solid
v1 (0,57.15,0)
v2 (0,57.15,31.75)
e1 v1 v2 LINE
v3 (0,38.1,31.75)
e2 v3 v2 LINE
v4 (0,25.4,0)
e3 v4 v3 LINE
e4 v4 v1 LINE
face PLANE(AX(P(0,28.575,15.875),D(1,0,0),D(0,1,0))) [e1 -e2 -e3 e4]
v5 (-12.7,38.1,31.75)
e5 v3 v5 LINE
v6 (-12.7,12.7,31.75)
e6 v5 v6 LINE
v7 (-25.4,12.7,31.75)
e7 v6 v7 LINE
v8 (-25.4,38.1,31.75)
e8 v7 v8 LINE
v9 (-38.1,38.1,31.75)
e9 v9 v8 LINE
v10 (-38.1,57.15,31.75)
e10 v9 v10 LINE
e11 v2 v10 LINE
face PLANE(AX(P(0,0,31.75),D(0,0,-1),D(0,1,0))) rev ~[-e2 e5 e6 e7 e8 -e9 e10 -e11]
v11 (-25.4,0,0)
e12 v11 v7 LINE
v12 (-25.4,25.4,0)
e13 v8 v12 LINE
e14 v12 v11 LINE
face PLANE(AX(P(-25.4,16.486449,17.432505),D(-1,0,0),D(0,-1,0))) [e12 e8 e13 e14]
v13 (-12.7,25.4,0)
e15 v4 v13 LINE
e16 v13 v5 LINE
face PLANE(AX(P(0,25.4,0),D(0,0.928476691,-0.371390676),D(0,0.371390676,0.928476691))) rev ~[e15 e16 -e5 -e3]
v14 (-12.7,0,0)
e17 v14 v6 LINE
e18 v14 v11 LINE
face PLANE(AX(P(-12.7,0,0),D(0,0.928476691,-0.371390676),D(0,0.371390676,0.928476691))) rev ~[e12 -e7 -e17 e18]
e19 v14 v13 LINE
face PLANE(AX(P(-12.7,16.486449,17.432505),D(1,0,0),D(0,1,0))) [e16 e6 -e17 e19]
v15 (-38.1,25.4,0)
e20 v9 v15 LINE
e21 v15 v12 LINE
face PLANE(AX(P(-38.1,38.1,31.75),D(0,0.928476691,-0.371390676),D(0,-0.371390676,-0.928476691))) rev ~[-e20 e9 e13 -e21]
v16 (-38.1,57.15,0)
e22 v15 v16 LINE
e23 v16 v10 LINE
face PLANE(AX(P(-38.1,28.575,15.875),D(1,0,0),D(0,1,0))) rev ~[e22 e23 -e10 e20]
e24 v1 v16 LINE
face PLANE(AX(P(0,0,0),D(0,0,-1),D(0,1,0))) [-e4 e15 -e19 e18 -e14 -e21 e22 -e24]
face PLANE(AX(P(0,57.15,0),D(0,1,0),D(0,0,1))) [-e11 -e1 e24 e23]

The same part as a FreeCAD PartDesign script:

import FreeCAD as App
import Part
import Sketcher
Q = App.Units.Quantity

doc = App.newDocument("Part")
body = doc.addObject("PartDesign::Body", "Body")

sketch1 = doc.addObject("Sketcher::SketchObject", "Sketch")
body.addObject(sketch1)
sketch1.AttachmentSupport = (doc.YZ_Plane, [""])
sketch1.MapMode = "FlatFace"
sketch1.addGeometry([
    Part.LineSegment(App.Vector(0, 32, 0), App.Vector(0, 0, 0)),
    Part.LineSegment(App.Vector(0, 0, 0), App.Vector(57, 0, 0)),
    Part.LineSegment(App.Vector(57, 0, 0), App.Vector(57, 32, 0)),
    Part.LineSegment(App.Vector(57, 32, 0), App.Vector(0, 32, 0)),
], False)
sketch1.addConstraint([
    Sketcher.Constraint("Coincident", 0, 2, 1, 1),
    Sketcher.Constraint("Coincident", 1, 2, 2, 1),
    Sketcher.Constraint("Coincident", 2, 2, 3, 1),
    Sketcher.Constraint("Coincident", 3, 2, 0, 1),
    Sketcher.Constraint("Vertical", 0),
    Sketcher.Constraint("Horizontal", 1),
    Sketcher.Constraint("Vertical", 2),
    Sketcher.Constraint("Horizontal", 3),
    Sketcher.Constraint("Coincident", 0, 2, -1, 1),
    Sketcher.Constraint("DistanceX", 1, 1, 1, 2, Q("2.25 in")),
    Sketcher.Constraint("DistanceY", 0, 2, 0, 1, Q("1.25 in")),
])
pad1 = doc.addObject("PartDesign::Pad", "Pad")
body.addObject(pad1)
pad1.Profile = sketch1
pad1.Length = Q("1.5 in")
pad1.Reversed = True

sketch2 = doc.addObject("Sketcher::SketchObject", "Sketch001")
body.addObject(sketch2)
sketch2.AttachmentSupport = (doc.YZ_Plane, [""])
sketch2.MapMode = "FlatFace"
sketch2.AttachmentOffset = App.Placement(App.Vector(0, 0, -1.5 * 25.4), App.Rotation())
sketch2.addGeometry([
    Part.LineSegment(App.Vector(0, 32, 0), App.Vector(38, 32, 0)),
    Part.LineSegment(App.Vector(38, 32, 0), App.Vector(25, 0, 0)),
    Part.LineSegment(App.Vector(25, 0, 0), App.Vector(0, 0, 0)),
    Part.LineSegment(App.Vector(0, 0, 0), App.Vector(0, 32, 0)),
], False)
sketch2.addConstraint([
    Sketcher.Constraint("Coincident", 0, 2, 1, 1),
    Sketcher.Constraint("Coincident", 1, 2, 2, 1),
    Sketcher.Constraint("Coincident", 2, 2, 3, 1),
    Sketcher.Constraint("Coincident", 3, 2, 0, 1),
    Sketcher.Constraint("Horizontal", 0),
    Sketcher.Constraint("Horizontal", 2),
    Sketcher.Constraint("Vertical", 3),
    Sketcher.Constraint("Coincident", 2, 2, -1, 1),
    Sketcher.Constraint("DistanceX", 2, 2, 2, 1, Q("1 in")),
    Sketcher.Constraint("DistanceX", 0, 1, 0, 2, Q("1.5 in")),
    Sketcher.Constraint("DistanceY", 3, 1, 3, 2, Q("1.25 in")),
])
pocket1 = doc.addObject("PartDesign::Pocket", "Pocket")
body.addObject(pocket1)
pocket1.Profile = sketch2
pocket1.Length = Q("0.5 in")
pocket1.Reversed = True

sketch3 = doc.addObject("Sketcher::SketchObject", "Sketch002")
body.addObject(sketch3)
sketch3.AttachmentSupport = (doc.YZ_Plane, [""])
sketch3.MapMode = "FlatFace"
sketch3.addGeometry([
    Part.LineSegment(App.Vector(25, 0, 0), App.Vector(38, 32, 0)),
    Part.LineSegment(App.Vector(38, 32, 0), App.Vector(0, 32, 0)),
    Part.LineSegment(App.Vector(0, 32, 0), App.Vector(0, 0, 0)),
    Part.LineSegment(App.Vector(0, 0, 0), App.Vector(25, 0, 0)),
], False)
sketch3.addConstraint([
    Sketcher.Constraint("Coincident", 0, 2, 1, 1),
    Sketcher.Constraint("Coincident", 1, 2, 2, 1),
    Sketcher.Constraint("Coincident", 2, 2, 3, 1),
    Sketcher.Constraint("Coincident", 3, 2, 0, 1),
    Sketcher.Constraint("Horizontal", 1),
    Sketcher.Constraint("Vertical", 2),
    Sketcher.Constraint("Horizontal", 3),
    Sketcher.Constraint("Coincident", 2, 2, -1, 1),
    Sketcher.Constraint("DistanceX", 3, 1, 3, 2, Q("1 in")),
    Sketcher.Constraint("DistanceX", 1, 2, 1, 1, Q("1.5 in")),
    Sketcher.Constraint("DistanceY", 2, 2, 2, 1, Q("1.25 in")),
])
pocket2 = doc.addObject("PartDesign::Pocket", "Pocket001")
body.addObject(pocket2)
pocket2.Profile = sketch3
pocket2.Length = Q("0.5 in")

sketch4 = doc.addObject("Sketcher::SketchObject", "Sketch003")
body.addObject(sketch4)
sketch4.AttachmentSupport = (doc.YZ_Plane, [""])
sketch4.MapMode = "FlatFace"
sketch4.AttachmentOffset = App.Placement(App.Vector(0, 0, -0.5 * 25.4), App.Rotation())
sketch4.addGeometry([
    Part.LineSegment(App.Vector(0, 0, 0), App.Vector(13, 32, 0)),
    Part.LineSegment(App.Vector(13, 32, 0), App.Vector(0, 32, 0)),
    Part.LineSegment(App.Vector(0, 32, 0), App.Vector(0, 0, 0)),
], False)
sketch4.addConstraint([
    Sketcher.Constraint("Coincident", 0, 2, 1, 1),
    Sketcher.Constraint("Coincident", 1, 2, 2, 1),
    Sketcher.Constraint("Coincident", 2, 2, 0, 1),
    Sketcher.Constraint("Horizontal", 1),
    Sketcher.Constraint("Vertical", 2),
    Sketcher.Constraint("Coincident", 2, 2, -1, 1),
    Sketcher.Constraint("DistanceX", 1, 2, 1, 1, Q("0.5 in")),
    Sketcher.Constraint("DistanceY", 2, 2, 2, 1, Q("1.25 in")),
])
pocket3 = doc.addObject("PartDesign::Pocket", "Pocket002")
body.addObject(pocket3)
pocket3.Profile = sketch4
pocket3.Length = Q("0.5 in")

doc.recompute()
